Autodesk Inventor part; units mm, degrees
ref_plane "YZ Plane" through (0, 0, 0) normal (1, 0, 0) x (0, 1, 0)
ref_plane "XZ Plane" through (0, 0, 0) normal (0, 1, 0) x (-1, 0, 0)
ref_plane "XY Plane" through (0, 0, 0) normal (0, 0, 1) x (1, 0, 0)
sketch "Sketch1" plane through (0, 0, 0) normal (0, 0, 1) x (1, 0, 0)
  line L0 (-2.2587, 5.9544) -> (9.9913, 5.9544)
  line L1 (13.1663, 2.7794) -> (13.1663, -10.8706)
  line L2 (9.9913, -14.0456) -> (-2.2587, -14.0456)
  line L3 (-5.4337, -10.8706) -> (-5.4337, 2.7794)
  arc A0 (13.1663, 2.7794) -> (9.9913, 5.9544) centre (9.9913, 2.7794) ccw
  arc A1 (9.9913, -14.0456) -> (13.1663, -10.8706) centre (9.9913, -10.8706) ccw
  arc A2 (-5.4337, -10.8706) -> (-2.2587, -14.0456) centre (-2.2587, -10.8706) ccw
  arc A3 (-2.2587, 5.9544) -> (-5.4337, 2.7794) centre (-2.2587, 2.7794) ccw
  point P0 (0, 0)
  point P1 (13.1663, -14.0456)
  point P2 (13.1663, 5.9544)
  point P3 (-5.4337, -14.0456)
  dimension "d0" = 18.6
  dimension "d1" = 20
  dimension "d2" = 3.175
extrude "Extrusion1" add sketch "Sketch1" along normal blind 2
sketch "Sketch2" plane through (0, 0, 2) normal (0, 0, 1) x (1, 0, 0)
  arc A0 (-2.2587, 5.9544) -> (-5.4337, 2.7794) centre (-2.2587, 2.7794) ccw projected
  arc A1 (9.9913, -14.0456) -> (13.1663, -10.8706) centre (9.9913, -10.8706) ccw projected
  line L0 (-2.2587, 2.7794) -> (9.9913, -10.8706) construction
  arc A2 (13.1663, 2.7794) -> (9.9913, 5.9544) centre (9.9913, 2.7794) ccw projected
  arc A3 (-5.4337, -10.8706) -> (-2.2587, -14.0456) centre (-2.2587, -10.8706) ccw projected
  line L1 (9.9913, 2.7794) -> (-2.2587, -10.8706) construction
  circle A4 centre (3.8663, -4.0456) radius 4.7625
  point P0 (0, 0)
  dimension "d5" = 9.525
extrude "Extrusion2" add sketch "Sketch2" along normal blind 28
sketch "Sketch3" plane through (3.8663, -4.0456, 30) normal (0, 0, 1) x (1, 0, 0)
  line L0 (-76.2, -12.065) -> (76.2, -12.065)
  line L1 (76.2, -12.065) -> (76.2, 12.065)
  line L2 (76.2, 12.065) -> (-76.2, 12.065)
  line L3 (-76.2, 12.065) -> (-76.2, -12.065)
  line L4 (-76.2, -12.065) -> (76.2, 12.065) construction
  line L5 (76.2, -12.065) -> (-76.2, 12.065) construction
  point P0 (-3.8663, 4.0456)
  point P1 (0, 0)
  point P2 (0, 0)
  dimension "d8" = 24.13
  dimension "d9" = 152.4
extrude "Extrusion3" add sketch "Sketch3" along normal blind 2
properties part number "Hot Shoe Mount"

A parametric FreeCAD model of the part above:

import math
import FreeCAD as App
import Part
import Sketcher
from FreeCAD import Vector
Q = App.Units.Quantity


def add_polygon(sketch, points):
    """Adds a closed chain of lines whose ends are joined by coincident constraints."""
    first, n = sketch.GeometryCount, len(points)
    for a, b in zip(points, points[1:] + points[:1]):
        sketch.addGeometry(Part.LineSegment(App.Vector(*a, 0), App.Vector(*b, 0)), False)
    for i in range(n):
        sketch.addConstraint(Sketcher.Constraint("Coincident", first + i, 2, first + (i + 1) % n, 1))

doc = App.newDocument("Part")
body = doc.addObject("PartDesign::Body", "Body")

# Sketch on XY plane
sketch1 = body.newObject("Sketcher::SketchObject", "Sketch")
sketch1.AttachmentSupport = (doc.getObject("XY_Plane"), [""])
sketch1.MapMode = "FlatFace"
sketch1.addGeometry([
    Part.LineSegment(Vector(9.9913, 5.9544, 0), Vector(-2.2587, 5.9544, 0)),  # 0
    Part.ArcOfCircle(Part.Circle(Vector(-2.2587, 2.7794, 0), Vector(0, 0, 1), 3.175), math.radians(90), math.radians(180)),  # 1
    Part.LineSegment(Vector(-5.4337, 2.7794, 0), Vector(-5.4337, -10.8706, 0)),  # 2
    Part.ArcOfCircle(Part.Circle(Vector(-2.2587, -10.8706, 0), Vector(0, 0, 1), 3.175), math.radians(180), math.radians(270)),  # 3
    Part.LineSegment(Vector(-2.2587, -14.0456, 0), Vector(9.9913, -14.0456, 0)),  # 4
    Part.ArcOfCircle(Part.Circle(Vector(9.9913, -10.8706, 0), Vector(0, 0, 1), 3.175), math.radians(-90), math.radians(0)),  # 5
    Part.LineSegment(Vector(13.1663, -10.8706, 0), Vector(13.1663, 2.7794, 0)),  # 6
    Part.ArcOfCircle(Part.Circle(Vector(9.9913, 2.7794, 0), Vector(0, 0, 1), 3.175), math.radians(0), math.radians(90)),  # 7
], False)
sketch1.addConstraint([
    Sketcher.Constraint("Tangent", 0, 2, 1, 1),
    Sketcher.Constraint("Tangent", 1, 2, 2, 1),
    Sketcher.Constraint("Tangent", 2, 2, 3, 1),
    Sketcher.Constraint("Tangent", 3, 2, 4, 1),
    Sketcher.Constraint("Tangent", 4, 2, 5, 1),
    Sketcher.Constraint("Tangent", 5, 2, 6, 1),
    Sketcher.Constraint("Tangent", 6, 2, 7, 1),
    Sketcher.Constraint("Tangent", 7, 2, 0, 1),
    Sketcher.Constraint("Horizontal", 0),
    Sketcher.Constraint("Vertical", 2),
    Sketcher.Constraint("Horizontal", 4),
    Sketcher.Constraint("Vertical", 6),
    Sketcher.Constraint("Equal", 1, 3),
    Sketcher.Constraint("Equal", 3, 5),
    Sketcher.Constraint("Equal", 5, 7),
    Sketcher.Constraint("Radius", 1, Q("0.125 in")),
    Sketcher.Constraint("DistanceY", 2, 2, 2, 1, Q("0.5374 in")),
    Sketcher.Constraint("DistanceX", 0, 2, 0, 1, 12.25),
    Sketcher.Constraint("DistanceX", 1, 3, -1, 1, 2.2587),
    Sketcher.Constraint("DistanceY", -1, 1, 1, 3, 2.7794),
])
pad1 = body.newObject("PartDesign::Pad", "Pad")
pad1.Profile = sketch1
pad1.Length = 2

# Sketch on XY plane
sketch2 = body.newObject("Sketcher::SketchObject", "Sketch001")
sketch2.AttachmentSupport = (doc.getObject("XY_Plane"), [""])
sketch2.MapMode = "FlatFace"
sketch2.AttachmentOffset = App.Placement(Vector(0, 0, 2), App.Rotation())
sketch2.addGeometry(Part.Circle(Vector(3.8663, -4.0456, 0), Vector(0, 0, 1), 4.7625), False)
sketch2.addConstraint([
    Sketcher.Constraint("Diameter", 0, Q("0.375 in")),
    Sketcher.Constraint("DistanceX", -1, 1, 0, 3, 3.8663),
    Sketcher.Constraint("DistanceY", 0, 3, -1, 1, 4.0456),
])
pad2 = body.newObject("PartDesign::Pad", "Pad001")
pad2.Profile = sketch2
pad2.Length = 28

# Sketch on XY plane
sketch3 = body.newObject("Sketcher::SketchObject", "Sketch002")
sketch3.AttachmentSupport = (doc.getObject("XY_Plane"), [""])
sketch3.MapMode = "FlatFace"
sketch3.AttachmentOffset = App.Placement(Vector(0, 0, 1.1811024 * 25.4), App.Rotation())
add_polygon(sketch3, [(-72.3337, 8.0194), (-72.3337, -16.1106), (80.0663, -16.1106), (80.0663, 8.0194)])  # lines 0-3
sketch3.addConstraint([
    Sketcher.Constraint("Vertical", 0),
    Sketcher.Constraint("Horizontal", 1),
    Sketcher.Constraint("Vertical", 2),
    Sketcher.Constraint("Horizontal", 3),
    Sketcher.Constraint("DistanceX", 1, 1, 1, 2, Q("6 in")),
    Sketcher.Constraint("DistanceY", 0, 2, 0, 1, Q("0.95 in")),
    Sketcher.Constraint("DistanceX", 0, 2, -1, 1, 72.3337),
    Sketcher.Constraint("DistanceY", 0, 2, -1, 1, 16.1106),
])
pad3 = body.newObject("PartDesign::Pad", "Pad002")
pad3.Profile = sketch3
pad3.Length = 2

doc.recompute()
